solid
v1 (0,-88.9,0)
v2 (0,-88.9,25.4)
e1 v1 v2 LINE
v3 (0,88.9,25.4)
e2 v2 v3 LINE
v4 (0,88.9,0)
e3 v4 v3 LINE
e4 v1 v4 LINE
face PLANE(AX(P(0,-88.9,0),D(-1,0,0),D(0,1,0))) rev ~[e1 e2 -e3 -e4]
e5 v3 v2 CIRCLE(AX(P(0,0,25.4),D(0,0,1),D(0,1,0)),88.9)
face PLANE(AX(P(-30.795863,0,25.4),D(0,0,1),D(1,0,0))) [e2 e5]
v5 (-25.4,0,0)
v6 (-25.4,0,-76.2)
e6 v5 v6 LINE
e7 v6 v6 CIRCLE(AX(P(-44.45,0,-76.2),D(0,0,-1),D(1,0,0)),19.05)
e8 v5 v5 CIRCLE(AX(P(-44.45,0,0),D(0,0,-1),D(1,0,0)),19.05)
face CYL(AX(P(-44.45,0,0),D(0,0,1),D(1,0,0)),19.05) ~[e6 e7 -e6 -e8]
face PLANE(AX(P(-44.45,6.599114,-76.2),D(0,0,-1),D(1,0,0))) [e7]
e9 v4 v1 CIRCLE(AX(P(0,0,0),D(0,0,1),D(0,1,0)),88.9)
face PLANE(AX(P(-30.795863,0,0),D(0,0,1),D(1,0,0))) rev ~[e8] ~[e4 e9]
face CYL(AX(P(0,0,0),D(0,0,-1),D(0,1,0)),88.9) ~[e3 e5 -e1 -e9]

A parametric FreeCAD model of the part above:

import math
import FreeCAD as App
import Part
import Sketcher

V = App.Vector
Q = App.Units.Quantity

doc = App.newDocument("Part")
body = doc.addObject("PartDesign::Body", "Body")

# Sketch on XY plane
sketch1 = body.newObject("Sketcher::SketchObject", "Sketch")
sketch1.AttachmentSupport = (doc.getObject("XY_Plane"), [""])
sketch1.MapMode = "FlatFace"
sketch1.addGeometry(Part.LineSegment(V(0, -88.9, 0), V(0, 88.9, 0)), False)
sketch1.addGeometry(Part.ArcOfCircle(Part.Circle(V(0, 0, 0), V(0, 0, 1), 88.9), math.radians(90), math.radians(270)), False)
sketch1.addConstraint(Sketcher.Constraint("Coincident", 0, 1, 1, 2))
sketch1.addConstraint(Sketcher.Constraint("Coincident", 1, 1, 0, 2))
sketch1.addConstraint(Sketcher.Constraint("Vertical", 0))
sketch1.addConstraint(Sketcher.Constraint("Coincident", 1, 3, -1, 1))
sketch1.addConstraint(Sketcher.Constraint("PointOnObject", 0, 1, -2))
sketch1.addConstraint(Sketcher.Constraint("Radius", 1, Q("3.5 in")))
pad1 = body.newObject("PartDesign::Pad", "Pad")
pad1.Profile = sketch1
pad1.Length = Q("1 in")

# Sketch on XY plane
sketch2 = body.newObject("Sketcher::SketchObject", "Sketch001")
sketch2.AttachmentSupport = (doc.getObject("XY_Plane"), [""])
sketch2.MapMode = "FlatFace"
sketch2.addGeometry(Part.Circle(V(-44.45, 0, 0), V(0, 0, 1), 19.05), False)
sketch2.addConstraint(Sketcher.Constraint("PointOnObject", 0, 3, -1))
sketch2.addConstraint(Sketcher.Constraint("Diameter", 0, Q("1.5 in")))
sketch2.addConstraint(Sketcher.Constraint("DistanceX", 0, 3, -1, 1, Q("1.75 in")))
pad2 = body.newObject("PartDesign::Pad", "Pad001")
pad2.Profile = sketch2
pad2.Length = Q("3 in")
pad2.Reversed = True

doc.recompute()
